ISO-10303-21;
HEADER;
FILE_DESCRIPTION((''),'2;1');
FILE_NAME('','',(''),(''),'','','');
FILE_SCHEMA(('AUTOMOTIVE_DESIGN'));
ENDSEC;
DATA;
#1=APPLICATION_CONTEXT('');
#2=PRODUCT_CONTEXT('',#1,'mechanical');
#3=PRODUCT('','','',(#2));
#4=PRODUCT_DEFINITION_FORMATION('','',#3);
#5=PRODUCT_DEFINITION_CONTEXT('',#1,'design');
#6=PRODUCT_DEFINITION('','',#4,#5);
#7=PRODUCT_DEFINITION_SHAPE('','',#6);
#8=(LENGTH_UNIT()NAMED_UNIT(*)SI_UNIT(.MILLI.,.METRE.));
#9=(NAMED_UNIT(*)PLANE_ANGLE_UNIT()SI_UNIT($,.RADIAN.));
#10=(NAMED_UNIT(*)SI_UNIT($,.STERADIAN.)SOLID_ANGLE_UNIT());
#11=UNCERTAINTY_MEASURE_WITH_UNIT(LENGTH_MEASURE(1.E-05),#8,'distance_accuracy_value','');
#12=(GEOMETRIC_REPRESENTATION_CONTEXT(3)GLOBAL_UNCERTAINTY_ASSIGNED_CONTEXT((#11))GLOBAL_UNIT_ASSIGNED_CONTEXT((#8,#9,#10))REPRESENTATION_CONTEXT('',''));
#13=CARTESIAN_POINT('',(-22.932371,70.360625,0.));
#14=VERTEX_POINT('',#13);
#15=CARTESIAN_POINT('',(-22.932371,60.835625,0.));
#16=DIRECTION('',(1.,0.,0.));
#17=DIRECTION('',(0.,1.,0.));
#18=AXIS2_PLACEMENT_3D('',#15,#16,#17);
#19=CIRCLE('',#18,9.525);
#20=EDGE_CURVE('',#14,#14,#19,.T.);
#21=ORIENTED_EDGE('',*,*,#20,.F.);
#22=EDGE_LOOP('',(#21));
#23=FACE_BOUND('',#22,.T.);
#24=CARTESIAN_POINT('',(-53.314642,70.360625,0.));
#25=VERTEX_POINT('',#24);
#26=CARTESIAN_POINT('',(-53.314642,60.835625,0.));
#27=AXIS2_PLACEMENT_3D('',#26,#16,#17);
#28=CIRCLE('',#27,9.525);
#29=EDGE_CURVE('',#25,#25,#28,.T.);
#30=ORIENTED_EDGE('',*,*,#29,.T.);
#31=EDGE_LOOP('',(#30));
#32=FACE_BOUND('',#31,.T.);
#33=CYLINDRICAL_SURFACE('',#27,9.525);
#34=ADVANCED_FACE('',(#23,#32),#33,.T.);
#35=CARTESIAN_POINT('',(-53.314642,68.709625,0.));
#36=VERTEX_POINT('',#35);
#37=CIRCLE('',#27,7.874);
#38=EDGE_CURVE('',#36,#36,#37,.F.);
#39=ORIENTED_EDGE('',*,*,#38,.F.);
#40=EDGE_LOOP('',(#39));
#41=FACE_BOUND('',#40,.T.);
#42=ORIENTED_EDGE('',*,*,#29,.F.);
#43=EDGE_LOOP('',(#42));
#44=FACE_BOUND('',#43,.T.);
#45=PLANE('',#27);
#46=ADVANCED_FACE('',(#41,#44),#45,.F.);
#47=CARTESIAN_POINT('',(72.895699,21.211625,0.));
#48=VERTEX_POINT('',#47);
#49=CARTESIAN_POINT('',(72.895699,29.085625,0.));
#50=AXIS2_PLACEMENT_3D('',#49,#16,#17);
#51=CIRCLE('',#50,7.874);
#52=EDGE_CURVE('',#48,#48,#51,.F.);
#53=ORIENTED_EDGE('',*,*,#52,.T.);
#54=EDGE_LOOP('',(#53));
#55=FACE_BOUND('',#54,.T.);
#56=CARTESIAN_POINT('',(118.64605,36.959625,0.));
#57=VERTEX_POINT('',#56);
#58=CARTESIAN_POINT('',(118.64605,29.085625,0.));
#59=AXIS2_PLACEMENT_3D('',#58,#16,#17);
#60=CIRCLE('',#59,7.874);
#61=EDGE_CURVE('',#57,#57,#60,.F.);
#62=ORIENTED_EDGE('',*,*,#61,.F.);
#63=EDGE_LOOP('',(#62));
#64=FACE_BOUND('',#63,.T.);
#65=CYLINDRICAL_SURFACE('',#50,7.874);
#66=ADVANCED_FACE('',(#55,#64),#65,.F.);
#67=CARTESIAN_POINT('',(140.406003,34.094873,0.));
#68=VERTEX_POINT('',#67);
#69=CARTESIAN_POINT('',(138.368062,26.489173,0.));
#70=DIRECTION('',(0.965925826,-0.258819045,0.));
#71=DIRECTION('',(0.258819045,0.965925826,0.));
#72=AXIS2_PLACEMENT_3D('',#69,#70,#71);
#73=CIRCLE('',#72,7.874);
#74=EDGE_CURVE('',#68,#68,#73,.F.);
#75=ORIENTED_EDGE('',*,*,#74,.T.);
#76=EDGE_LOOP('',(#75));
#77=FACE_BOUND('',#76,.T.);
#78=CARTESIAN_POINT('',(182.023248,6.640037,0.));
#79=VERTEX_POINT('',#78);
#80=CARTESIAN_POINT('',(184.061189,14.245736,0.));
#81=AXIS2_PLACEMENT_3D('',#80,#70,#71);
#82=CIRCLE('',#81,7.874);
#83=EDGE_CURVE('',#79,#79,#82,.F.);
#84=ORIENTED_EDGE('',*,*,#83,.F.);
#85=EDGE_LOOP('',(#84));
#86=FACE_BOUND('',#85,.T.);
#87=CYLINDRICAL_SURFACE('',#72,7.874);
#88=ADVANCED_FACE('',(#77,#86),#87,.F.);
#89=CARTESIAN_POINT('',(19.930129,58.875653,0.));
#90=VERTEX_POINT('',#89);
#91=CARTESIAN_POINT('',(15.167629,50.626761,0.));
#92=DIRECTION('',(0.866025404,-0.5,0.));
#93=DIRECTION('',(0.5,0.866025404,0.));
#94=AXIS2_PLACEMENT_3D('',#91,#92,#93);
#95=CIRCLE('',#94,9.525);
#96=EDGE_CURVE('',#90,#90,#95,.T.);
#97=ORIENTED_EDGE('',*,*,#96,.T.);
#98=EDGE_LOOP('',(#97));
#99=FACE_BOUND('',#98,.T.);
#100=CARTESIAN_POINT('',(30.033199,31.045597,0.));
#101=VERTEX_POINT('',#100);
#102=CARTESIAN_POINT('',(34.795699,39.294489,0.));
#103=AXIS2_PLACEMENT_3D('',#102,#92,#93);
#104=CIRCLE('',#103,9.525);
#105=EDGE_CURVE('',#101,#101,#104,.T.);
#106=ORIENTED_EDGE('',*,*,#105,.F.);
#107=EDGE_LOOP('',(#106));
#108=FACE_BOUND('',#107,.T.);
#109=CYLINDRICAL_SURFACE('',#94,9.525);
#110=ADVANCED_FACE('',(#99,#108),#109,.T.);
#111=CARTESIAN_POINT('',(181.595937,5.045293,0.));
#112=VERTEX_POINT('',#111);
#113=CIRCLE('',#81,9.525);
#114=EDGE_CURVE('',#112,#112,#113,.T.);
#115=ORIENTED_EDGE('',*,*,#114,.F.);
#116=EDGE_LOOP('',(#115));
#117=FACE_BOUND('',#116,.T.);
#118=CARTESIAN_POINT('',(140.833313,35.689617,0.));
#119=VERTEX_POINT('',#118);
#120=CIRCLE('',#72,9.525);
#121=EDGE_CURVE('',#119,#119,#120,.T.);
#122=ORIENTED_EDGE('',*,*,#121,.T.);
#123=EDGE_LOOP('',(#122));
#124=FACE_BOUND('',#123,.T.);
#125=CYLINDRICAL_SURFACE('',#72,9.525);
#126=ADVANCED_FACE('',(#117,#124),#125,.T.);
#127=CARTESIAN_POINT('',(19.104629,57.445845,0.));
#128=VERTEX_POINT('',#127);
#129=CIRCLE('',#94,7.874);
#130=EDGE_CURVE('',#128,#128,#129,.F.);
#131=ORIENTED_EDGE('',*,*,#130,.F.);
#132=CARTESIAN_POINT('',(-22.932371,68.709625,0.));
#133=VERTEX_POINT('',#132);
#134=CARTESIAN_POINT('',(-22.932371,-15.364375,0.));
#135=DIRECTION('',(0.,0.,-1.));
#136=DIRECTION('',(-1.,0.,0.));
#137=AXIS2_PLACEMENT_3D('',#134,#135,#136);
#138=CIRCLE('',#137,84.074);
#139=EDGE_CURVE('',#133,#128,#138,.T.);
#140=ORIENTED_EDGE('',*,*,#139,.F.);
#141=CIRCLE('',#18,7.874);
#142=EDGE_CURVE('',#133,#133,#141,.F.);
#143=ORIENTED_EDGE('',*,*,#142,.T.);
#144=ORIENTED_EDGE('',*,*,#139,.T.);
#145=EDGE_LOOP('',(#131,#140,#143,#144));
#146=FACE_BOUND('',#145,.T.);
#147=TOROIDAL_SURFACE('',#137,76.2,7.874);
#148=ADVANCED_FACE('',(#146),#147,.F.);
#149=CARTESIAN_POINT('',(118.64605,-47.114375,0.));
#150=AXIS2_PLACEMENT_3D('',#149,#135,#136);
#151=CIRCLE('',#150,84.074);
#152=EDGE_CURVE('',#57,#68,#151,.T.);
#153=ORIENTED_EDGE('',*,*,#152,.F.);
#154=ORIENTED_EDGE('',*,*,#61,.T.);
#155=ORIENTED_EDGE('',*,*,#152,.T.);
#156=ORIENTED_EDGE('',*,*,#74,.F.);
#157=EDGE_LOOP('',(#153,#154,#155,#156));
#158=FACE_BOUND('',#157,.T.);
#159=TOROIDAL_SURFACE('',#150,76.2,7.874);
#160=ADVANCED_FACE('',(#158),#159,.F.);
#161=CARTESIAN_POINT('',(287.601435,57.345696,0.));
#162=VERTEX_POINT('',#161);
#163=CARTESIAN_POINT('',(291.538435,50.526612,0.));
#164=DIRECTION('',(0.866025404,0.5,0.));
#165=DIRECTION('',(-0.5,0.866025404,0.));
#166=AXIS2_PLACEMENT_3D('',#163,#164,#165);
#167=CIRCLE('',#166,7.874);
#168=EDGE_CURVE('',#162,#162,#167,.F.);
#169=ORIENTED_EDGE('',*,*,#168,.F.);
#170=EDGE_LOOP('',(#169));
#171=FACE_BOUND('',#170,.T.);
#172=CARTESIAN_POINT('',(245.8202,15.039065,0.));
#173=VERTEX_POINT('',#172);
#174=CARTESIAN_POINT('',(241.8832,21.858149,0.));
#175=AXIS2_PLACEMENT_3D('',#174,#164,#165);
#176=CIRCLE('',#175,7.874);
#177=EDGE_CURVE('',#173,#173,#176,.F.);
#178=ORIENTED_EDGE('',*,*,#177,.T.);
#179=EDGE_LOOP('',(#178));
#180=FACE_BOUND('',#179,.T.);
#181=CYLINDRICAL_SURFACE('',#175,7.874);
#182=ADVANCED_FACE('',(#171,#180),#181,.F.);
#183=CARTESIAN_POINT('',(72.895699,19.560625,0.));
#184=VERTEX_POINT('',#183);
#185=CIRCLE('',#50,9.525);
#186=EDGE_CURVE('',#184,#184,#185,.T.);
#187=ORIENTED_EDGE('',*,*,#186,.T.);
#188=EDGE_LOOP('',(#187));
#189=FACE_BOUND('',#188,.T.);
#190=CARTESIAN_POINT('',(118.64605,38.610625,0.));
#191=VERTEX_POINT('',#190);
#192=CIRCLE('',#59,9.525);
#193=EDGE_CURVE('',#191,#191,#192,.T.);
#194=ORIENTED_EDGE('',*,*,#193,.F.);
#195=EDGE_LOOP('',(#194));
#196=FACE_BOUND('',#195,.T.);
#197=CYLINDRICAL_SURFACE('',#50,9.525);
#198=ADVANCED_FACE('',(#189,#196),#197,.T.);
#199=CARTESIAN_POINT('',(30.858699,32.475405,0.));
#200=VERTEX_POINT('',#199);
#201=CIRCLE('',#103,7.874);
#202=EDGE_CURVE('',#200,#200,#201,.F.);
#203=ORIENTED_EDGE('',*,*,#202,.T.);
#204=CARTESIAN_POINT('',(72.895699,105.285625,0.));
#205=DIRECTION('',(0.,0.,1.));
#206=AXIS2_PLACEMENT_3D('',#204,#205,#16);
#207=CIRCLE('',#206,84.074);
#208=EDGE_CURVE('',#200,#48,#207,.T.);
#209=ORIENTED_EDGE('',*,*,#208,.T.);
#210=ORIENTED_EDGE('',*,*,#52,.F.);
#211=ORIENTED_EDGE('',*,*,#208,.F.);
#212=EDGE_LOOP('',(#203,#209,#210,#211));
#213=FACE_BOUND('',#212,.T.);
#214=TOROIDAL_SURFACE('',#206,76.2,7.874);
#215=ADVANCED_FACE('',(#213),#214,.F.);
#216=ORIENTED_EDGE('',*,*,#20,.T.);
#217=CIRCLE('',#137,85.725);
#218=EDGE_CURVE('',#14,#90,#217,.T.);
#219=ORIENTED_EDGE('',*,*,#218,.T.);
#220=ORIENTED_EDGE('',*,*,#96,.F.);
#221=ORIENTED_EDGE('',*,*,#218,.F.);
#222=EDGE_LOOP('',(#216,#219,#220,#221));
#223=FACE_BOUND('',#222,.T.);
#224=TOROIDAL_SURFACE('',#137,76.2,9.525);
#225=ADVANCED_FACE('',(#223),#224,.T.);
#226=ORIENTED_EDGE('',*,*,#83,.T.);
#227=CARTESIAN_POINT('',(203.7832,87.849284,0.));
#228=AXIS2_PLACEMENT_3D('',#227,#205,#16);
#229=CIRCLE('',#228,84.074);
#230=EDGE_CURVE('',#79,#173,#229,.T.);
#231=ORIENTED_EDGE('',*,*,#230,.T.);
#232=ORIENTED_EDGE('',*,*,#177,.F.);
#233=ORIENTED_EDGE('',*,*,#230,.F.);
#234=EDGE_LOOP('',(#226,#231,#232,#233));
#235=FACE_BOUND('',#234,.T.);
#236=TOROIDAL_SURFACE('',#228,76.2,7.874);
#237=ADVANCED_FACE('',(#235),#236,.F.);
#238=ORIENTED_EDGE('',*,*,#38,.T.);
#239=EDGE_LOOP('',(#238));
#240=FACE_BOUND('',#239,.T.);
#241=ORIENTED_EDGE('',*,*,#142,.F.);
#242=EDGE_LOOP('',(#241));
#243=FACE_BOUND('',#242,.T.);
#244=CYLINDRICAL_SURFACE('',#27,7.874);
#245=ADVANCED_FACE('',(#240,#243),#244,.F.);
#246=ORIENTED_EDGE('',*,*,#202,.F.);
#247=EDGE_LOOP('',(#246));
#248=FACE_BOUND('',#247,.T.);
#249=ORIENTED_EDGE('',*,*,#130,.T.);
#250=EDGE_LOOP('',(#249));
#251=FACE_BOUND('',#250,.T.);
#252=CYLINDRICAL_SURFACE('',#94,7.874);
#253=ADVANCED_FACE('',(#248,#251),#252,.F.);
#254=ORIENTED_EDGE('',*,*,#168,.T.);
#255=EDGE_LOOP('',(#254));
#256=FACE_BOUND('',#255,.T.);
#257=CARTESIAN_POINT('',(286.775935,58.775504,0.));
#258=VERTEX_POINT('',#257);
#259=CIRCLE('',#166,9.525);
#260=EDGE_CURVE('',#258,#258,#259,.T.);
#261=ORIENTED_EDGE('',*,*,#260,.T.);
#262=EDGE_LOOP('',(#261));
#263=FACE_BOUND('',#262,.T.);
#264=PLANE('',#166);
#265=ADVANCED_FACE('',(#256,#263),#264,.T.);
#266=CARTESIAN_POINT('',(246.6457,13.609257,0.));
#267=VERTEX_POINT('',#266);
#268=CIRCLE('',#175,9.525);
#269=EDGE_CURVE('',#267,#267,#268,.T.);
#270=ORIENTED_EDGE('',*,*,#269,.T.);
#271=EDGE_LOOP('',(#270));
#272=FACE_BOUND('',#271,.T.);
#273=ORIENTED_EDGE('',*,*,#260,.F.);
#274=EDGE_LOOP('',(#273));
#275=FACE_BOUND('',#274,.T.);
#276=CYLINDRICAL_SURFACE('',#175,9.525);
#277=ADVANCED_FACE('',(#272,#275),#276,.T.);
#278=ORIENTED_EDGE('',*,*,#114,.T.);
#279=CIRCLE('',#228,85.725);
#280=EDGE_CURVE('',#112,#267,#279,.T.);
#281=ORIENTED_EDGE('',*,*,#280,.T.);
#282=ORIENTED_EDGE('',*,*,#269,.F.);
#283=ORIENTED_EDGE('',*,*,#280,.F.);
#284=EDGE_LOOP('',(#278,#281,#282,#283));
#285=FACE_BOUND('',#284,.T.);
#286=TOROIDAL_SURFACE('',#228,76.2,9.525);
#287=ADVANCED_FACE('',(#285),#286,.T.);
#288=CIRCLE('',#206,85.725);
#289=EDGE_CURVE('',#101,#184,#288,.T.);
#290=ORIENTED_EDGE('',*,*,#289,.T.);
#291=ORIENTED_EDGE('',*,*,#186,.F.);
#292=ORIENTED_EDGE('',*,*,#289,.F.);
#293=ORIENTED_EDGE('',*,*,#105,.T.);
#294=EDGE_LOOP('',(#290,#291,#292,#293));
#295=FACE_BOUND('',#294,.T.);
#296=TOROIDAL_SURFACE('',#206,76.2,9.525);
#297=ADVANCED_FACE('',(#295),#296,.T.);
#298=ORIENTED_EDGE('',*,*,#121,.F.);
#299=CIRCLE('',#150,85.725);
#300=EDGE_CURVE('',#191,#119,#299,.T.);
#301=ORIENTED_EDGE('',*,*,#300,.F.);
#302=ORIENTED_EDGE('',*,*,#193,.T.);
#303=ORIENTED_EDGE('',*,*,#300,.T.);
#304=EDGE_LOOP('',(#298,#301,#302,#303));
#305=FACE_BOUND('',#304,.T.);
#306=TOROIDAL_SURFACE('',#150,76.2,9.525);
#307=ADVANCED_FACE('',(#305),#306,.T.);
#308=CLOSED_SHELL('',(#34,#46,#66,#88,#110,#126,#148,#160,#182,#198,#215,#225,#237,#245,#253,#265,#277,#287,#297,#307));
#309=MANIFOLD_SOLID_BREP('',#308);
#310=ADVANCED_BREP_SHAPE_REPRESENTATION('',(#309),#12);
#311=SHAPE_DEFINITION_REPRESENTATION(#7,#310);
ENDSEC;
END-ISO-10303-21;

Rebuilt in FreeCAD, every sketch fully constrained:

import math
import FreeCAD as App
import Part
import Sketcher
Q = App.Units.Quantity

doc = App.newDocument("Part")
body = doc.addObject("PartDesign::Body", "Body")

sketch1 = body.newObject("Sketcher::SketchObject", "Sketch")
sketch1.AttachmentSupport = (doc.getObject("YZ_Plane"), [""])
sketch1.MapMode = "FlatFace"
sketch1.AttachmentOffset = App.Placement(App.Vector(0, 0, -53.314642), App.Rotation())
sketch1.addGeometry(Part.Circle(App.Vector(61, 0, 0), App.Vector(0, 0, 1), 10), False)
sketch1.addGeometry(Part.Circle(App.Vector(61, 0, 0), App.Vector(0, 0, 1), 8), False)
sketch1.addConstraint(Sketcher.Constraint("Coincident", 1, 3, 0, 3))
sketch1.addConstraint(Sketcher.Constraint("PointOnObject", 0, 3, -1))
sketch1.addConstraint(Sketcher.Constraint("Diameter", 0, Q("0.75 in")))
sketch1.addConstraint(Sketcher.Constraint("Diameter", 1, Q("0.62 in")))
sketch1.addConstraint(Sketcher.Constraint("DistanceX", -1, 1, 0, 3, Q("60.835625 mm")))

sketch2 = body.newObject("Sketcher::SketchObject", "Sketch001")
sketch2.AttachmentSupport = (doc.getObject("XY_Plane"), [""])
sketch2.MapMode = "FlatFace"
sketch2.addGeometry(Part.LineSegment(App.Vector(-53, 61, 0), App.Vector(-23, 61, 0)), False)
sketch2.addGeometry(Part.ArcOfCircle(Part.Circle(App.Vector(-23, -15, 0), App.Vector(0, 0, 1), 76), math.radians(60), math.radians(90)), False)
sketch2.addGeometry(Part.LineSegment(App.Vector(15, 51, 0), App.Vector(35, 39, 0)), False)
sketch2.addGeometry(Part.ArcOfCircle(Part.Circle(App.Vector(73, 105, 0), App.Vector(0, 0, 1), 76), math.radians(-120), math.radians(-90)), False)
sketch2.addGeometry(Part.LineSegment(App.Vector(73, 29, 0), App.Vector(119, 29, 0)), False)
sketch2.addGeometry(Part.ArcOfCircle(Part.Circle(App.Vector(119, -47, 0), App.Vector(0, 0, 1), 76), math.radians(75), math.radians(90)), False)
sketch2.addGeometry(Part.LineSegment(App.Vector(138, 26, 0), App.Vector(184, 14, 0)), False)
sketch2.addGeometry(Part.ArcOfCircle(Part.Circle(App.Vector(204, 88, 0), App.Vector(0, 0, 1), 76), math.radians(-105), math.radians(-60)), False)
sketch2.addGeometry(Part.LineSegment(App.Vector(242, 22, 0), App.Vector(292, 51, 0)), False)
sketch2.addConstraint(Sketcher.Constraint("Tangent", 0, 2, 1, 2))
sketch2.addConstraint(Sketcher.Constraint("Tangent", 1, 1, 2, 1))
sketch2.addConstraint(Sketcher.Constraint("Tangent", 2, 2, 3, 1))
sketch2.addConstraint(Sketcher.Constraint("Tangent", 3, 2, 4, 1))
sketch2.addConstraint(Sketcher.Constraint("Tangent", 4, 2, 5, 2))
sketch2.addConstraint(Sketcher.Constraint("Tangent", 5, 1, 6, 1))
sketch2.addConstraint(Sketcher.Constraint("Tangent", 6, 2, 7, 1))
sketch2.addConstraint(Sketcher.Constraint("Tangent", 7, 2, 8, 1))
sketch2.addConstraint(Sketcher.Constraint("Horizontal", 0))
sketch2.addConstraint(Sketcher.Constraint("Horizontal", 4))
sketch2.addConstraint(Sketcher.Constraint("Equal", 1, 3))
sketch2.addConstraint(Sketcher.Constraint("Equal", 3, 5))
sketch2.addConstraint(Sketcher.Constraint("Equal", 5, 7))
sketch2.addConstraint(Sketcher.Constraint("Radius", 1, Q("3 in")))
sketch2.addConstraint(Sketcher.Constraint("Angle", 2, Q("-30 deg")))
sketch2.addConstraint(Sketcher.Constraint("Angle", 6, Q("-15 deg")))
sketch2.addConstraint(Sketcher.Constraint("Angle", 8, Q("30 deg")))
sketch2.addConstraint(Sketcher.Constraint("DistanceY", 1, 3, 3, 3, Q("4.75 in")))
sketch2.addConstraint(Sketcher.Constraint("DistanceX", 0, 1, 0, 2, Q("30.382272 mm")))
sketch2.addConstraint(Sketcher.Constraint("DistanceX", 4, 1, 4, 2, Q("45.750351 mm")))
sketch2.addConstraint(Sketcher.Constraint("DistanceX", -1, 1, 3, 3, Q("72.895699 mm")))
sketch2.addConstraint(Sketcher.Constraint("DistanceX", -1, 1, 7, 3, Q("203.7832 mm")))
sketch2.addConstraint(Sketcher.Constraint("DistanceY", -1, 1, 1, 1, Q("50.626761 mm")))
sketch2.addConstraint(Sketcher.Constraint("DistanceY", -1, 1, 8, 2, Q("50.526612 mm")))
doc.recompute()

additivepipe = body.newObject("PartDesign::AdditivePipe", "AdditivePipe")
additivepipe.Profile = sketch1
additivepipe.Spine = (sketch2, ["Edge1", "Edge2", "Edge3", "Edge4", "Edge5", "Edge6", "Edge7", "Edge8", "Edge9"])

doc.recompute()
